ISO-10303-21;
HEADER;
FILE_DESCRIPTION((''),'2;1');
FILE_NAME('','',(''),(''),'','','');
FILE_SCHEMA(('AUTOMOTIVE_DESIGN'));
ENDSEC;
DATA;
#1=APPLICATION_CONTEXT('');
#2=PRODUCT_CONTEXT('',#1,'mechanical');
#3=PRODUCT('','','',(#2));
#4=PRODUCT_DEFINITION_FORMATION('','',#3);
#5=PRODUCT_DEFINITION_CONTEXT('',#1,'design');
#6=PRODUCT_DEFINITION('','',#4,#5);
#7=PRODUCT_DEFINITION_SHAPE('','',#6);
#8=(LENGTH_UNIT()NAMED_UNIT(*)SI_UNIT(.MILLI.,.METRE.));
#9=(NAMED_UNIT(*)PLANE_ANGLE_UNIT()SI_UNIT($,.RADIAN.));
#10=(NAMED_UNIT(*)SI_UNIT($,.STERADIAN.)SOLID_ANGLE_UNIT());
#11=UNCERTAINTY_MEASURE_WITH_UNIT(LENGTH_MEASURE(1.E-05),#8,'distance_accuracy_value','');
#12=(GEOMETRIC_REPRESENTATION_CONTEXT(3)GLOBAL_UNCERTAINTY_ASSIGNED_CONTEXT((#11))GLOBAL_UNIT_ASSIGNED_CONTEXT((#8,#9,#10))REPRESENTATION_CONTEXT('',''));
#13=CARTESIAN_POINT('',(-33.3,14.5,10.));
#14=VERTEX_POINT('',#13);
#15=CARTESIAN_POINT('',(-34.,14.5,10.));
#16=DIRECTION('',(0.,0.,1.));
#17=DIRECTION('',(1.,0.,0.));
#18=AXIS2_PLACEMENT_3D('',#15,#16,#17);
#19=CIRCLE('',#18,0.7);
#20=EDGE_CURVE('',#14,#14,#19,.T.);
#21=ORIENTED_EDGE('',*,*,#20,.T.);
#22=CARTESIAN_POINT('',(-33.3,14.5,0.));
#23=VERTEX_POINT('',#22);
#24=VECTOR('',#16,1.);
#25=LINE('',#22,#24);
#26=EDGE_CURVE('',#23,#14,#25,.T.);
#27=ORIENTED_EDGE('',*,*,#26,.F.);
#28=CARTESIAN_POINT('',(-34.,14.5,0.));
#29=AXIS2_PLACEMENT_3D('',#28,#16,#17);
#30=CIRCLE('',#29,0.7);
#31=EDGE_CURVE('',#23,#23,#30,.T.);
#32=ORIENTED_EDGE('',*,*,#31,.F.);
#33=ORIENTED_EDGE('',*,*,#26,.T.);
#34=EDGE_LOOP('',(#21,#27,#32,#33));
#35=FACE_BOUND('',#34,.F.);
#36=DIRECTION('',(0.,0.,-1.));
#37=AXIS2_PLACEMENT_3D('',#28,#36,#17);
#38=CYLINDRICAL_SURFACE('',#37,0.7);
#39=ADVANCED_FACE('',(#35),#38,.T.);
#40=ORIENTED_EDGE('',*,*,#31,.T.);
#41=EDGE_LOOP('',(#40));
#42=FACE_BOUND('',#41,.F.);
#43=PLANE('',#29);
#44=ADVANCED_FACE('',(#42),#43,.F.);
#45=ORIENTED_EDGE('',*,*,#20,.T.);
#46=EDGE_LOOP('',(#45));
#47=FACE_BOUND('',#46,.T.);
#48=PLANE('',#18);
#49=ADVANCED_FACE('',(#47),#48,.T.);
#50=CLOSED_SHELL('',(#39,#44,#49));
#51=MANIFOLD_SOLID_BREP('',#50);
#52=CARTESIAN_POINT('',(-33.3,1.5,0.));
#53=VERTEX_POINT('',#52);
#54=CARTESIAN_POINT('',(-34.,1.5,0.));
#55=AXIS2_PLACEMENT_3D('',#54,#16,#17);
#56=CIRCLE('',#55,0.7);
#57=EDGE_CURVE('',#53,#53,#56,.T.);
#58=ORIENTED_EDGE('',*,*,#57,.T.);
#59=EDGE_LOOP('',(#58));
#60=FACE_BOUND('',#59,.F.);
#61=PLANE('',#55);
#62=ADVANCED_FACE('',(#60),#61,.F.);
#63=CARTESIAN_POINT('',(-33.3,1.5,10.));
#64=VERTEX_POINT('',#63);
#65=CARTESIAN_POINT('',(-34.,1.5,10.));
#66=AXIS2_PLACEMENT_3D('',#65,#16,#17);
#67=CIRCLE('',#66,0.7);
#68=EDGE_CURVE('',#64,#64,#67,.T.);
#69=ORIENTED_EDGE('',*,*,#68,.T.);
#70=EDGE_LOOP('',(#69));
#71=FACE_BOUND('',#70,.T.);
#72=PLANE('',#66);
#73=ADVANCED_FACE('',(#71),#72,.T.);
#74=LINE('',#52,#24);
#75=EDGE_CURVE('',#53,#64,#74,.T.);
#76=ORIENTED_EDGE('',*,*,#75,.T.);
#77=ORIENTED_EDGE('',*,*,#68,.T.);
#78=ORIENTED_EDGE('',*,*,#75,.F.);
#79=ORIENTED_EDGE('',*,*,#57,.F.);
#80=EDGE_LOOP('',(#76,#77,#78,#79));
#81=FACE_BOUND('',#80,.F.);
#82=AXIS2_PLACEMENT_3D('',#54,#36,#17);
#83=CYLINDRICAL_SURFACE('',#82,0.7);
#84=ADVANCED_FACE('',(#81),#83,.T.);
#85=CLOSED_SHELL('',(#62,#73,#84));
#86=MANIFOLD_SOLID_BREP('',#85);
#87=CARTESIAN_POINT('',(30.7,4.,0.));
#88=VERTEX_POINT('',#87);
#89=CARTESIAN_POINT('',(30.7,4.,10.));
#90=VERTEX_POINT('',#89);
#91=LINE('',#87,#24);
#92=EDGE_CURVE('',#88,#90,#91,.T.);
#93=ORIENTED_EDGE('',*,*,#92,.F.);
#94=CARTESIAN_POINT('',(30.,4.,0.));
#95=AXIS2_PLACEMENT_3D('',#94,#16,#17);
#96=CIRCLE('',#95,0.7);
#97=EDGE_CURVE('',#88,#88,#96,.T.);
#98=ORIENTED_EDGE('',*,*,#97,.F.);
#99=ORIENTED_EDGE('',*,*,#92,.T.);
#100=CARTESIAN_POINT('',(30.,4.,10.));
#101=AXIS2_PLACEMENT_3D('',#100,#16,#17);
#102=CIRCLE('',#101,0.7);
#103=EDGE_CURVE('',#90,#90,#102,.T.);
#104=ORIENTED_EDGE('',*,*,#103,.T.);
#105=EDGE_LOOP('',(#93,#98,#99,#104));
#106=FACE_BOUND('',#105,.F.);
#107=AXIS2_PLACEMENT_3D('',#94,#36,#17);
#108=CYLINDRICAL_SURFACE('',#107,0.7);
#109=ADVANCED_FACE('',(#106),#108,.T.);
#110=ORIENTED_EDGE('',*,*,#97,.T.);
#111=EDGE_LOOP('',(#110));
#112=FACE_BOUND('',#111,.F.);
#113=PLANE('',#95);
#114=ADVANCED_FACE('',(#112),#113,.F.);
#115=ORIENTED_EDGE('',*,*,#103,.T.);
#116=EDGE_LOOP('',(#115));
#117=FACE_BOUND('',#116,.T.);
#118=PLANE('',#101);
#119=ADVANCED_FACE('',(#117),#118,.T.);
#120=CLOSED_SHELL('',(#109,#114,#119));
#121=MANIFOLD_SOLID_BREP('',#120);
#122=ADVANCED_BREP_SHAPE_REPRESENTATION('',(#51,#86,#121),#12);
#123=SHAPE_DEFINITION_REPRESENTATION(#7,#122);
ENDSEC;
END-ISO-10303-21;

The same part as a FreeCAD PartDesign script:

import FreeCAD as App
import Part
import Sketcher

V = App.Vector
Q = App.Units.Quantity

doc = App.newDocument("Part")
body = doc.addObject("PartDesign::Body", "Body")

# Sketch on XY plane
sketch1 = doc.addObject("Sketcher::SketchObject", "Sketch")
body.addObject(sketch1)
sketch1.AttachmentSupport = (doc.XY_Plane, [""])
sketch1.MapMode = "FlatFace"
sketch1.addGeometry(Part.Circle(V(-34, 1.5, 0), V(0, 0, 1), 0.7), False)
sketch1.addConstraint([
    Sketcher.Constraint("Diameter", 0, Q("1.4 mm")),
    Sketcher.Constraint("DistanceX", 0, 3, -1, 1, Q("34 mm")),
    Sketcher.Constraint("DistanceY", -1, 1, 0, 3, Q("1.5 mm")),
])
pad1 = doc.addObject("PartDesign::Pad", "Pad")
body.addObject(pad1)
pad1.Profile = sketch1
pad1.Length = 10
body2 = doc.addObject("PartDesign::Body", "Body001")

# Sketch on XY plane
sketch2 = doc.addObject("Sketcher::SketchObject", "Sketch001")
body2.addObject(sketch2)
sketch2.AttachmentSupport = (doc.getObject("XY_Plane001"), [""])
sketch2.MapMode = "FlatFace"
sketch2.addGeometry(Part.Circle(V(-34, 14.5, 0), V(0, 0, 1), 0.7), False)
sketch2.addConstraint([
    Sketcher.Constraint("Diameter", 0, Q("1.4 mm")),
    Sketcher.Constraint("DistanceX", 0, 3, -1, 1, Q("34 mm")),
    Sketcher.Constraint("DistanceY", -1, 1, 0, 3, Q("14.5 mm")),
])
pad2 = doc.addObject("PartDesign::Pad", "Pad001")
body2.addObject(pad2)
pad2.Profile = sketch2
pad2.Length = 10
body3 = doc.addObject("PartDesign::Body", "Body002")
body3.AllowCompound = True

# Sketch on XY plane
sketch3 = doc.addObject("Sketcher::SketchObject", "Sketch002")
body3.addObject(sketch3)
sketch3.AttachmentSupport = (doc.getObject("XY_Plane002"), [""])
sketch3.MapMode = "FlatFace"
sketch3.addGeometry(Part.Circle(V(30, 4, 0), V(0, 0, 1), 0.7), False)
sketch3.addConstraint([
    Sketcher.Constraint("Diameter", 0, Q("1.4 mm")),
    Sketcher.Constraint("DistanceX", -1, 1, 0, 3, Q("30 mm")),
    Sketcher.Constraint("DistanceY", -1, 1, 0, 3, Q("4 mm")),
])
pad3 = doc.addObject("PartDesign::Pad", "Pad002")
body3.addObject(pad3)
pad3.Profile = sketch3
pad3.Length = 10
doc.recompute()

boolean = doc.addObject("PartDesign::Boolean", "Boolean")
body3.addObject(boolean)
boolean.Type = "Fuse"
boolean.addObjects([body])
doc.recompute()

boolean2 = doc.addObject("PartDesign::Boolean", "Boolean001")
body3.addObject(boolean2)
boolean2.Type = "Fuse"
boolean2.addObjects([body2])

doc.recompute()
